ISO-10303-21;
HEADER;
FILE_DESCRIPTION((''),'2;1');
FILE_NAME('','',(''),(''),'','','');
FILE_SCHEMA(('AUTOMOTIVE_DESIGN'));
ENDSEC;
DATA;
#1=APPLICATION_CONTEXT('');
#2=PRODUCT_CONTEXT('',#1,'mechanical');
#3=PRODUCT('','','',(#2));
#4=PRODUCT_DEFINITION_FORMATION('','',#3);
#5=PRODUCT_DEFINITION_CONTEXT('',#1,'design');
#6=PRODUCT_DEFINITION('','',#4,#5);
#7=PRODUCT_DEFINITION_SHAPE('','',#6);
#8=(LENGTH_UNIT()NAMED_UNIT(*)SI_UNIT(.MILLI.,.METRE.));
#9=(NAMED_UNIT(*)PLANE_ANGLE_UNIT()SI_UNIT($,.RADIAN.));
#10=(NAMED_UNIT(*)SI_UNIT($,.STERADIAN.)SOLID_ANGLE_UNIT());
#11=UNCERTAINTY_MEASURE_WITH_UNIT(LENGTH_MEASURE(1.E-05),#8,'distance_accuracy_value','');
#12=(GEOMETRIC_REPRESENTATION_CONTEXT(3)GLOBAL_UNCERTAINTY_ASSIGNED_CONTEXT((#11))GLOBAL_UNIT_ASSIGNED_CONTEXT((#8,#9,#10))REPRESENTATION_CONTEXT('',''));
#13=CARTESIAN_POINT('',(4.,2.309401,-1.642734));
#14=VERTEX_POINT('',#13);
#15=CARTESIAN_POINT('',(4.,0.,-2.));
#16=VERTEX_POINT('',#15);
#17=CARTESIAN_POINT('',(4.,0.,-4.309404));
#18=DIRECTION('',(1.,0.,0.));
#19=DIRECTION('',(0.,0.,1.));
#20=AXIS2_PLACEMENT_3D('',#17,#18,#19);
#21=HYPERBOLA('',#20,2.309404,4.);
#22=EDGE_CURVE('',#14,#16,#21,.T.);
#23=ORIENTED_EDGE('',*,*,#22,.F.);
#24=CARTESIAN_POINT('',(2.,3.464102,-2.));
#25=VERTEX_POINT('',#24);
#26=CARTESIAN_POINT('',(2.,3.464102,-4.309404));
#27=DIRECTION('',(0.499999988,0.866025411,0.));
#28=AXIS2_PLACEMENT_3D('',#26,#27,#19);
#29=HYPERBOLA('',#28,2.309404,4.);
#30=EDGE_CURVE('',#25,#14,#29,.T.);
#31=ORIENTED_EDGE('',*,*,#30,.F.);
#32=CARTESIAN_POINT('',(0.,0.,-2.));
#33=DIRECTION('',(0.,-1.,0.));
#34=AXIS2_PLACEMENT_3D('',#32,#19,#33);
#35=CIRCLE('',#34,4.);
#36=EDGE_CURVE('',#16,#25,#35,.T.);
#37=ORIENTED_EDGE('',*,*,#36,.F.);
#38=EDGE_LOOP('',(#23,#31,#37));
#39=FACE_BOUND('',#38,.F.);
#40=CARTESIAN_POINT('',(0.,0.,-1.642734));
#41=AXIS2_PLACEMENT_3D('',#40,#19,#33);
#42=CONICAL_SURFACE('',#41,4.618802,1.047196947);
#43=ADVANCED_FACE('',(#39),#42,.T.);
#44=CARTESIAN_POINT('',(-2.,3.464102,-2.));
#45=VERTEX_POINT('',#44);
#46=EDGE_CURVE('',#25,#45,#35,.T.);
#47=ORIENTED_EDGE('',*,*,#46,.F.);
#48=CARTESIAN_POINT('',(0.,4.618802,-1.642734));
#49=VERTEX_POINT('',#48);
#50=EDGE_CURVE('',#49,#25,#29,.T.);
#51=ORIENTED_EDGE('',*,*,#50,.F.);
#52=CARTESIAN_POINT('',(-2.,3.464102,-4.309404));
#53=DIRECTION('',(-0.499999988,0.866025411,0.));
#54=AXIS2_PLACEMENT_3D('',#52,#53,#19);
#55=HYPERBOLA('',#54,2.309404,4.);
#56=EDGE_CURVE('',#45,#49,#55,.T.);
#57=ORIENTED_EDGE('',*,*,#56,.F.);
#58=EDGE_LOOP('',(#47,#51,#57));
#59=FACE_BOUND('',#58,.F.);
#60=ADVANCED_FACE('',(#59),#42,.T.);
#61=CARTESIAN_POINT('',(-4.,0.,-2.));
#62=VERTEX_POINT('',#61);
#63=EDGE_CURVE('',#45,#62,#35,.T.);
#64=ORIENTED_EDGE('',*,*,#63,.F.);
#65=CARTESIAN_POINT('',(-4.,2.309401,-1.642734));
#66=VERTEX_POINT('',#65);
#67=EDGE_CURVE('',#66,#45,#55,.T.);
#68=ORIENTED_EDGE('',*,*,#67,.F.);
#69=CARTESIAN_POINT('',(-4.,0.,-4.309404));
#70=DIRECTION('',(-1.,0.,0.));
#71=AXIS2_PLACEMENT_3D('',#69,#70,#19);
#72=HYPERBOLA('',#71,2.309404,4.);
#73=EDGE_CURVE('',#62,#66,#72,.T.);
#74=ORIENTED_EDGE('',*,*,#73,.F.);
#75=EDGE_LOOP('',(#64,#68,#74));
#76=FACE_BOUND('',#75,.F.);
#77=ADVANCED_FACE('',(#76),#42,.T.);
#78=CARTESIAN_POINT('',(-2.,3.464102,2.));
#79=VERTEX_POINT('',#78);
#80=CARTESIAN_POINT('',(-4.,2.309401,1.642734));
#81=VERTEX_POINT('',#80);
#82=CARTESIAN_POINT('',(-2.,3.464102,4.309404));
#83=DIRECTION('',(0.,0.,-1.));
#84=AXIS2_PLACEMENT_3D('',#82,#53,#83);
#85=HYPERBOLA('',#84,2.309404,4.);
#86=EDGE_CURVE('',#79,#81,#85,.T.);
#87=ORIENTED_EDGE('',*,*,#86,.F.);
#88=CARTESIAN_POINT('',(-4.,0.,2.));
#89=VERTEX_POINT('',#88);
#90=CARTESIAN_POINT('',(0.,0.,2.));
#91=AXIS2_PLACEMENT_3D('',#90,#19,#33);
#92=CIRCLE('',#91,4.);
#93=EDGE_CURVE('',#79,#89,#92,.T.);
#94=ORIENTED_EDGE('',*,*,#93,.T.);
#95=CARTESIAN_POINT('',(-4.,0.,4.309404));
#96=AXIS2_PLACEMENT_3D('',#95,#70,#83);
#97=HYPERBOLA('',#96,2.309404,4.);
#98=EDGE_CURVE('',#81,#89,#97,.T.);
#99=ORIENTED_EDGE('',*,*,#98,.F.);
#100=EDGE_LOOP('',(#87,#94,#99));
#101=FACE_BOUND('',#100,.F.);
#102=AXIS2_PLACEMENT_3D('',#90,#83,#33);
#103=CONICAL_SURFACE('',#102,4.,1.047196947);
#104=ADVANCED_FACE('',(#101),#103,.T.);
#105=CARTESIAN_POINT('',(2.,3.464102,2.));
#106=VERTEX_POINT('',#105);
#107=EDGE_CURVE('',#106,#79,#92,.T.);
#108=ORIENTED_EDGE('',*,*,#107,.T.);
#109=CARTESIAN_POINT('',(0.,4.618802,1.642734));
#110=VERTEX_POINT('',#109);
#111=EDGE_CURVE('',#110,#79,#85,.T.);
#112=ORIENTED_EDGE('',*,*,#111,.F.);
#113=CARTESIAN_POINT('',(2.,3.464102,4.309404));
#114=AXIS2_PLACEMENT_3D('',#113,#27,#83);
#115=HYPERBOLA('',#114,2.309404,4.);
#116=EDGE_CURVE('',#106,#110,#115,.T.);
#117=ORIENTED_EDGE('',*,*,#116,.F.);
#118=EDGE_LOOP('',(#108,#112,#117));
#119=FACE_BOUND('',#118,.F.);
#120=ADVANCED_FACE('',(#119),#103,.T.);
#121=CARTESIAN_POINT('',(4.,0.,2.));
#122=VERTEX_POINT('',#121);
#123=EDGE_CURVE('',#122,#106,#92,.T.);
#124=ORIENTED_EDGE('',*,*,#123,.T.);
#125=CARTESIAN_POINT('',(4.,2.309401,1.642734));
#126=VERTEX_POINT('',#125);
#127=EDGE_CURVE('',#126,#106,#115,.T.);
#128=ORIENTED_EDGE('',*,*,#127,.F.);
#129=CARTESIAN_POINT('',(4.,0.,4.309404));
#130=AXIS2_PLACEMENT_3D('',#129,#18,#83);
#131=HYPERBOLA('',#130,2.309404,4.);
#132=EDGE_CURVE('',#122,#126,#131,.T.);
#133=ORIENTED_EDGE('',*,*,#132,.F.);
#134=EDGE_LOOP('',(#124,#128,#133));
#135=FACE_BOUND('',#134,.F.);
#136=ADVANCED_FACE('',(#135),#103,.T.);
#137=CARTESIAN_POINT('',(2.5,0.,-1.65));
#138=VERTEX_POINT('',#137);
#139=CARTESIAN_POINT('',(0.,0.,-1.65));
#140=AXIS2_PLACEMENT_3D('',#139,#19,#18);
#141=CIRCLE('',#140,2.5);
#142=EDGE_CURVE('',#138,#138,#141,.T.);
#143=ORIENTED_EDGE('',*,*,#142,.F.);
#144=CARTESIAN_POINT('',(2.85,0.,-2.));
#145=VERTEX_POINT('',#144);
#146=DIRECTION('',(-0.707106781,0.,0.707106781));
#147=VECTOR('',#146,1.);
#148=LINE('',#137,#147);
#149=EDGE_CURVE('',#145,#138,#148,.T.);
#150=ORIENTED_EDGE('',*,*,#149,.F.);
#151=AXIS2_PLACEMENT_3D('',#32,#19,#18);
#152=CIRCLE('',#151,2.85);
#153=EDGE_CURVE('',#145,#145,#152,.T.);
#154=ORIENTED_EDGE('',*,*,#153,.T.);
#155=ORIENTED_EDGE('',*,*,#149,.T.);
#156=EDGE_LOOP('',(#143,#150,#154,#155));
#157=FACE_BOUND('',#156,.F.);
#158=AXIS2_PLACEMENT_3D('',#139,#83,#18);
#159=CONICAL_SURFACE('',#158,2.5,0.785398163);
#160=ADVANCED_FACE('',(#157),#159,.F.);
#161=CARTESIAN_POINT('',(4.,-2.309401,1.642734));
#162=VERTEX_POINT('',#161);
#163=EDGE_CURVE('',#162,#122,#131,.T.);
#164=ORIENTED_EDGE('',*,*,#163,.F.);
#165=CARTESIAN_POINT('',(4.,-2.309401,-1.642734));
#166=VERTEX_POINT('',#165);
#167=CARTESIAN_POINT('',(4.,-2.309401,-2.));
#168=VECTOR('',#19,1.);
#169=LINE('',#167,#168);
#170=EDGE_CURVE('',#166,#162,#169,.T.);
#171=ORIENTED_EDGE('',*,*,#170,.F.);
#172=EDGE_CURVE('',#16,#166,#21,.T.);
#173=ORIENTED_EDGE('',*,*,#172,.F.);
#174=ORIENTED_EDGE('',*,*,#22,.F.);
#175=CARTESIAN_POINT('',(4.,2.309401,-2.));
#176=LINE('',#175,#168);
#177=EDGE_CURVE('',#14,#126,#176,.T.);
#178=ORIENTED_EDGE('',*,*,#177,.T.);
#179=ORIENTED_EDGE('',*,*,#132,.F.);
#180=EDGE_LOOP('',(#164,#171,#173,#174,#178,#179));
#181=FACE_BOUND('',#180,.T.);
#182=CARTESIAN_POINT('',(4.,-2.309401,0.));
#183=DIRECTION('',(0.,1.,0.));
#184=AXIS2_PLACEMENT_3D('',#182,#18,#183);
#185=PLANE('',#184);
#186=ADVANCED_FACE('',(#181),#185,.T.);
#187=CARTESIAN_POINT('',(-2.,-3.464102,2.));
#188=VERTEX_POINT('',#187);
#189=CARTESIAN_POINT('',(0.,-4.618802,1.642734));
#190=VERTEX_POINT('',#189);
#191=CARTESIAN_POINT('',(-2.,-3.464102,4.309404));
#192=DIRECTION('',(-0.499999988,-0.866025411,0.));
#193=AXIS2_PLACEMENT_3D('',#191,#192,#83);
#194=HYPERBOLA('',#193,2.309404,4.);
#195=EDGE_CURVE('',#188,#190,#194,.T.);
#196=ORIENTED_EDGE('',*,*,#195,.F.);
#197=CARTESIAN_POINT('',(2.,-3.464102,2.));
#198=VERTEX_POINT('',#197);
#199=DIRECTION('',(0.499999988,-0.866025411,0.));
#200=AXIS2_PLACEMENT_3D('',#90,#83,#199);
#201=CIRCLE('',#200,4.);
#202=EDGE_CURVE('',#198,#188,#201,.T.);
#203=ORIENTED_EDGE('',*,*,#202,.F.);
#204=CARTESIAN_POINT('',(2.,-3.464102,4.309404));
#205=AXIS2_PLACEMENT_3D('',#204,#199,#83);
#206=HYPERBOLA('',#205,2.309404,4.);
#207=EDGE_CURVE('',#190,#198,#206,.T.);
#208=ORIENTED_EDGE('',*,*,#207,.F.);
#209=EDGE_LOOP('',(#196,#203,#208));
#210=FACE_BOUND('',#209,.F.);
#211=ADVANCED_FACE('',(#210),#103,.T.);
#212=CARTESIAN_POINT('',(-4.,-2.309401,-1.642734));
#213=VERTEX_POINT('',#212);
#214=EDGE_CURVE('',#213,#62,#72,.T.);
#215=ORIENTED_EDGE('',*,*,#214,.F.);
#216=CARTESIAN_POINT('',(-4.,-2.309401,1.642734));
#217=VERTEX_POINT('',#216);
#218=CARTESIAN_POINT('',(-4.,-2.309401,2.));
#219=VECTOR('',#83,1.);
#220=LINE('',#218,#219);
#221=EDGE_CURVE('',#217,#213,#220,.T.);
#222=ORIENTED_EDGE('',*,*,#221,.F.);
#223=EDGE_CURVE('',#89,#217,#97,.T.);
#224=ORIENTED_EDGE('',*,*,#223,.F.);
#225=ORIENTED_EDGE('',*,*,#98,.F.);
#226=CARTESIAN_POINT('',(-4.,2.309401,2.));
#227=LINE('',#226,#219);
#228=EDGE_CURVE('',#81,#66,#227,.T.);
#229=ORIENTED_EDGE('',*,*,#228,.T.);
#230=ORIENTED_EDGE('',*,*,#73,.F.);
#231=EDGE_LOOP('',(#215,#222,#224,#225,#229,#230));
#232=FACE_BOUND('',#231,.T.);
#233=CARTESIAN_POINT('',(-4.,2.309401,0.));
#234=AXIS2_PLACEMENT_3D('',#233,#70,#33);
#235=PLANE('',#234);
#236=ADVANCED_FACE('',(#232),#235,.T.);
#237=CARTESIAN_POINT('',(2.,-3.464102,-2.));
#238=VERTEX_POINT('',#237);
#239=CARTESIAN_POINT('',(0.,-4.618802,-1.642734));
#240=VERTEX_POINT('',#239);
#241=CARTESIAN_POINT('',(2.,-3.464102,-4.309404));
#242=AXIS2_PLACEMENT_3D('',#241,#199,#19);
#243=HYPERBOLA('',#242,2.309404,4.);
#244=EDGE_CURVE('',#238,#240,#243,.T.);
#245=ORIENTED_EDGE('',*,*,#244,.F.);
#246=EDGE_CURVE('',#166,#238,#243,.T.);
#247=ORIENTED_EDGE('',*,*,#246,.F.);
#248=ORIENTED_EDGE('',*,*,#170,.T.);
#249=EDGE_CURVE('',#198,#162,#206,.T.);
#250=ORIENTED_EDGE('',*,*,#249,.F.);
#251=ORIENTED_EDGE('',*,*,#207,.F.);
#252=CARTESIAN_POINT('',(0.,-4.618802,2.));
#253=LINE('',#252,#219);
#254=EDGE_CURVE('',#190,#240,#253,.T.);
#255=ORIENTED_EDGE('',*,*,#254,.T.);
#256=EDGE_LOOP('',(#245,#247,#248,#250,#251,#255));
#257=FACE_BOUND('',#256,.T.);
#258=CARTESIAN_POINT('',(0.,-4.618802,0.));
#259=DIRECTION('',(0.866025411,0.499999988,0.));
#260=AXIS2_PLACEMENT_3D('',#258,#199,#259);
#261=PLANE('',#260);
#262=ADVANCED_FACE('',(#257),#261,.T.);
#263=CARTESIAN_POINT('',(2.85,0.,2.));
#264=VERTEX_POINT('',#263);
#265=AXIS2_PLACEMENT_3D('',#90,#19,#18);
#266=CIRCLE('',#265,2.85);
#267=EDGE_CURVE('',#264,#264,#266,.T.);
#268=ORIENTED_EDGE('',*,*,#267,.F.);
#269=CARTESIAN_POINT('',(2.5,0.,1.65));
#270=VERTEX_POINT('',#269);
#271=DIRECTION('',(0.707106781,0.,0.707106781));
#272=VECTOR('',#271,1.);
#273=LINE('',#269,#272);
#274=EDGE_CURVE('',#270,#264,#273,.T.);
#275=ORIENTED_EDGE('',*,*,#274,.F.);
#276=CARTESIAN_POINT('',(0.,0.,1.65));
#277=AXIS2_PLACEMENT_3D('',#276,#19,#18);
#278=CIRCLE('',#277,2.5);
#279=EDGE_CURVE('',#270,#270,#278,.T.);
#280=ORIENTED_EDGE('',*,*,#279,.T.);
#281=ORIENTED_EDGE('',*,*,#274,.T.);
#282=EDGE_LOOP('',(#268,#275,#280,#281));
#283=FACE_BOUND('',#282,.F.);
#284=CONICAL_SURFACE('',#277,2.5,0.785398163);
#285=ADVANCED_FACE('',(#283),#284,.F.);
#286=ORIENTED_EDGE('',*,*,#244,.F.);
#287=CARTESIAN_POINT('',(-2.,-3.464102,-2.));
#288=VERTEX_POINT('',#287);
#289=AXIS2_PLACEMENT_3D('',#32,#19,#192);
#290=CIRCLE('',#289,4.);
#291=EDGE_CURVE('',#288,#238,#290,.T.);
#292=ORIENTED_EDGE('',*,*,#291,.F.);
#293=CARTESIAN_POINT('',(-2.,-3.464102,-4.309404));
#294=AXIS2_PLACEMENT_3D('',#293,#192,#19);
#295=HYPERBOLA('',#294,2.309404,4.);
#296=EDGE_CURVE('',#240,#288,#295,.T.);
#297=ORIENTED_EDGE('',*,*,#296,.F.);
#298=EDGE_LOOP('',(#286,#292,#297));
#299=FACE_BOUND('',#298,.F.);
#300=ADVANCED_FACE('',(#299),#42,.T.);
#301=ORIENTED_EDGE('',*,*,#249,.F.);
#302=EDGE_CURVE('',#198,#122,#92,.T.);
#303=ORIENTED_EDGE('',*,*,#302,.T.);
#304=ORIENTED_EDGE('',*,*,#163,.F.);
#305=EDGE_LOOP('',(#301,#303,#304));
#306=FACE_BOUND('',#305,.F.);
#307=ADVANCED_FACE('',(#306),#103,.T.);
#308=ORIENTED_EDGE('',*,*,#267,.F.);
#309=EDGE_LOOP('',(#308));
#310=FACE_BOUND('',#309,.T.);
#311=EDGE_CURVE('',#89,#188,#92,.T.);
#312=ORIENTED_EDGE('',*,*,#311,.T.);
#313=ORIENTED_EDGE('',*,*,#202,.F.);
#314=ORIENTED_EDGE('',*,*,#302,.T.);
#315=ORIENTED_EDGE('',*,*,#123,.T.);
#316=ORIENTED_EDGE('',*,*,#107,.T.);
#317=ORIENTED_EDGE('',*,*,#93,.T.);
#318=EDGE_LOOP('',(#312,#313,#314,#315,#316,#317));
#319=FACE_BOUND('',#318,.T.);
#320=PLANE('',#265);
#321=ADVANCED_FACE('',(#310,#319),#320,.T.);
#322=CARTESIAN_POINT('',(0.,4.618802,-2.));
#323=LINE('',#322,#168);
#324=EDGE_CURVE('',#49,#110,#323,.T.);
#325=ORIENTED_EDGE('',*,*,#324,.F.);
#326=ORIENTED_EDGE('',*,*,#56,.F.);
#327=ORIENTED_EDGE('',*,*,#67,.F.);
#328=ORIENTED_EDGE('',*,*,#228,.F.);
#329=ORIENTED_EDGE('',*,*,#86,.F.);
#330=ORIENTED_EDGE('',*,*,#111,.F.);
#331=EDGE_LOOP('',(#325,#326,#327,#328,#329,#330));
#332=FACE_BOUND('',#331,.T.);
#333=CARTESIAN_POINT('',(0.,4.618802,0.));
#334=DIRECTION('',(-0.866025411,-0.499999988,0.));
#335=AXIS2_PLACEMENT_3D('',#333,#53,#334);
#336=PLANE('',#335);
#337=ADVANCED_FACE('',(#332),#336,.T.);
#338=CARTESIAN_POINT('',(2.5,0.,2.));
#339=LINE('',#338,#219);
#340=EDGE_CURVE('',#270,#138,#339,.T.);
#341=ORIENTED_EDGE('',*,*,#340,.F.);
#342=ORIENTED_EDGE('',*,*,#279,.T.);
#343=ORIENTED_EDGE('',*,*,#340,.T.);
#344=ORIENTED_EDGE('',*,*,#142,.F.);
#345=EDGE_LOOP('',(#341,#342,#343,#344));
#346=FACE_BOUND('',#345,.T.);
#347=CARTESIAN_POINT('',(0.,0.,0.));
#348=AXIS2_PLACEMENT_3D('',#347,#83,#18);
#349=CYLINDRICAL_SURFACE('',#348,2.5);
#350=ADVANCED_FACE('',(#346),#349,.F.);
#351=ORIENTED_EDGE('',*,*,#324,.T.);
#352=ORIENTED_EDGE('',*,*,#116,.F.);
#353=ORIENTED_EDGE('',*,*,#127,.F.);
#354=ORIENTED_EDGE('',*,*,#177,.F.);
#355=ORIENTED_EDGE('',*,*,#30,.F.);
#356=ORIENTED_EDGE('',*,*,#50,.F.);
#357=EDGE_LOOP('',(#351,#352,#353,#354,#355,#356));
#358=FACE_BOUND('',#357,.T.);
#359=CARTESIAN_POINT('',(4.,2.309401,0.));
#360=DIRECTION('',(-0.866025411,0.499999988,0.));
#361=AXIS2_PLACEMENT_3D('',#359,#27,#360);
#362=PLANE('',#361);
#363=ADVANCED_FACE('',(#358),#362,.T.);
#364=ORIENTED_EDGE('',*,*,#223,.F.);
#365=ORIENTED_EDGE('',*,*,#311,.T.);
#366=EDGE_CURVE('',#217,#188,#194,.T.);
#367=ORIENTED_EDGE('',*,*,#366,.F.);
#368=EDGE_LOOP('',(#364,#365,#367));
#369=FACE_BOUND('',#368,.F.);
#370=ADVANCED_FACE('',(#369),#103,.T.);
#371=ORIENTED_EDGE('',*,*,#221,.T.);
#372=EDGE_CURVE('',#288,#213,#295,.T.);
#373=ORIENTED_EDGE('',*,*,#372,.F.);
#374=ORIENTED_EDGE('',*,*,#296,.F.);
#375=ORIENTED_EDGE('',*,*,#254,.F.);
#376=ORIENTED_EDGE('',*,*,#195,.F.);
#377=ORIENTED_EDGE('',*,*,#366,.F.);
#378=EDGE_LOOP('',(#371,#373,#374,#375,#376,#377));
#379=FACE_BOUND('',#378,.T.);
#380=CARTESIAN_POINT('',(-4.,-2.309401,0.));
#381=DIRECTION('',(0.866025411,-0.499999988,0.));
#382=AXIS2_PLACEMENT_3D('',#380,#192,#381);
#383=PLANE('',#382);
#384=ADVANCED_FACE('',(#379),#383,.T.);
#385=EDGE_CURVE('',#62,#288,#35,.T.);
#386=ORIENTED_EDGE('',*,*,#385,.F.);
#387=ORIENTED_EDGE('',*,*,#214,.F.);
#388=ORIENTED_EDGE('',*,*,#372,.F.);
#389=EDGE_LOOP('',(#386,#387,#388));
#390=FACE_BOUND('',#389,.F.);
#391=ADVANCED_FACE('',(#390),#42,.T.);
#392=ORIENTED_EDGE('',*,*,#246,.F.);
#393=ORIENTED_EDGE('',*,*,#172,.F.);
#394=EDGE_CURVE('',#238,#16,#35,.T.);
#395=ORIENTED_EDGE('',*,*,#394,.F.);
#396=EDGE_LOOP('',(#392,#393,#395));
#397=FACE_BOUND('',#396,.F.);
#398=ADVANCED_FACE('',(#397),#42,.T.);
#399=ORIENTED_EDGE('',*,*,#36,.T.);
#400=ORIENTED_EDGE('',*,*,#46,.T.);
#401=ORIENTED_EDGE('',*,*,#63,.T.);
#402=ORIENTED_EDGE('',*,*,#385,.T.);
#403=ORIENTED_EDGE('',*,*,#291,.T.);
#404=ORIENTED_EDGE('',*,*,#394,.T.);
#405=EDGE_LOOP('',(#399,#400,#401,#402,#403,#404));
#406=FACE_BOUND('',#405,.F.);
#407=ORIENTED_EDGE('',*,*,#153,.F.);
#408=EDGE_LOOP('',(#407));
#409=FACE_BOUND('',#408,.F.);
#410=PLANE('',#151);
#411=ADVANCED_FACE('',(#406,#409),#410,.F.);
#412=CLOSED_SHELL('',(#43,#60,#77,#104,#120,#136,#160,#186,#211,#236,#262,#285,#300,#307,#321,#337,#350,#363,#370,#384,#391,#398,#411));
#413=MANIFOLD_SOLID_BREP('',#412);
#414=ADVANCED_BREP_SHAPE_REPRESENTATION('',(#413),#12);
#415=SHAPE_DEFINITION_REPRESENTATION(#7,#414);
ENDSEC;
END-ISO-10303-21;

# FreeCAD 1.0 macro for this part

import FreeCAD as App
import Part
import Sketcher
Q = App.Units.Quantity


def edges_at(feature, points):
    """Names of the edges that pass closest to the given points."""
    edges = feature.Shape.Edges
    near = lambda p: min(range(len(edges)), key=lambda i: edges[i].distToShape(Part.Vertex(*p))[0])
    return sorted({f"Edge{near(p) + 1}" for p in points})

doc = App.newDocument("Part")
body = doc.addObject("PartDesign::Body", "Body")

sketch1 = body.newObject("Sketcher::SketchObject", "Sketch")
sketch1.AttachmentSupport = (doc.getObject("XY_Plane"), [""])
sketch1.MapMode = "FlatFace"
sketch1.addGeometry([
    Part.LineSegment(App.Vector(0, -4.6, 0), App.Vector(4, -2.3, 0)),
    Part.LineSegment(App.Vector(4, -2.3, 0), App.Vector(4, 2.3, 0)),
    Part.LineSegment(App.Vector(4, 2.3, 0), App.Vector(0, 4.6, 0)),
    Part.LineSegment(App.Vector(0, 4.6, 0), App.Vector(-4, 2.3, 0)),
    Part.LineSegment(App.Vector(-4, 2.3, 0), App.Vector(-4, -2.3, 0)),
    Part.LineSegment(App.Vector(-4, -2.3, 0), App.Vector(0, -4.6, 0)),
    Part.Circle(App.Vector(0, 0, 0), App.Vector(0, 0, 1), 2.5),
], False)
sketch1.addConstraint([
    Sketcher.Constraint("Coincident", 0, 2, 1, 1),
    Sketcher.Constraint("Coincident", 1, 2, 2, 1),
    Sketcher.Constraint("Coincident", 2, 2, 3, 1),
    Sketcher.Constraint("Coincident", 3, 2, 4, 1),
    Sketcher.Constraint("Coincident", 4, 2, 5, 1),
    Sketcher.Constraint("Coincident", 5, 2, 0, 1),
    Sketcher.Constraint("Vertical", 1),
    Sketcher.Constraint("Vertical", 4),
    Sketcher.Constraint("Coincident", 6, 3, -1, 1),
    Sketcher.Constraint("Symmetric", 0, 2, 3, 2, -1, 1),
    Sketcher.Constraint("Symmetric", 2, 2, 5, 2, -1, 1),
    Sketcher.Constraint("PointOnObject", 2, 2, -2),
    Sketcher.Constraint("Parallel", 2, 5),
    Sketcher.Constraint("Horizontal", 1, 2, 3, 2),
    Sketcher.Constraint("Diameter", 6, Q("5 mm")),
    Sketcher.Constraint("Angle", 0, Q("29.999999 deg")),
    Sketcher.Constraint("DistanceX", -1, 1, 0, 2, Q("4 mm")),
    Sketcher.Constraint("DistanceY", 1, 1, 1, 2, Q("4.618802 mm")),
])
pad1 = body.newObject("PartDesign::Pad", "Pad")
pad1.Profile = sketch1
pad1.Length = 4
pad1.Midplane = True

sketch2 = body.newObject("Sketcher::SketchObject", "Sketch001")
sketch2.AttachmentSupport = (doc.getObject("YZ_Plane"), [""])
sketch2.MapMode = "FlatFace"
sketch2.addGeometry([
    Part.LineSegment(App.Vector(-4.62, 1.64, 0), App.Vector(-4, 2, 0)),
    Part.LineSegment(App.Vector(-4, 2, 0), App.Vector(-4.62, 2, 0)),
    Part.LineSegment(App.Vector(-4.62, 2, 0), App.Vector(-4.62, 1.64, 0)),
    Part.LineSegment(App.Vector(-4.62, -2, 0), App.Vector(-4, -2, 0)),
    Part.LineSegment(App.Vector(-4, -2, 0), App.Vector(-4.62, -1.64, 0)),
    Part.LineSegment(App.Vector(-4.62, -1.64, 0), App.Vector(-4.62, -2, 0)),
], False)
sketch2.addConstraint([
    Sketcher.Constraint("Coincident", 0, 2, 1, 1),
    Sketcher.Constraint("Coincident", 1, 2, 2, 1),
    Sketcher.Constraint("Coincident", 2, 2, 0, 1),
    Sketcher.Constraint("Coincident", 3, 2, 4, 1),
    Sketcher.Constraint("Coincident", 4, 2, 5, 1),
    Sketcher.Constraint("Coincident", 5, 2, 3, 1),
    Sketcher.Constraint("Horizontal", 1),
    Sketcher.Constraint("Vertical", 2),
    Sketcher.Constraint("Horizontal", 3),
    Sketcher.Constraint("Vertical", 5),
    Sketcher.Constraint("Symmetric", 0, 2, 3, 2, -1),
    Sketcher.Constraint("Symmetric", 2, 2, 4, 2, -1),
    Sketcher.Constraint("DistanceX", 0, 2, -1, 1, Q("4 mm")),
    Sketcher.Constraint("DistanceY", -1, 1, 0, 2, Q("2 mm")),
    Sketcher.Constraint("DistanceX", 1, 2, 1, 1, Q("0.618802 mm")),
    Sketcher.Constraint("Distance", 0, Q("0.714531 mm")),
])
groove = body.newObject("PartDesign::Groove", "Groove")
groove.Profile = sketch2
groove.ReferenceAxis = (sketch2, ["V_Axis"])
groove.Angle = 360
doc.recompute()

chamfer = body.newObject("PartDesign::Chamfer", "Chamfer")
chamfer.Base = (groove, edges_at(groove, [(-2.5, 0, 2), (-2.5, 0, -2)]))
chamfer.Size = 0.35

doc.recompute()
